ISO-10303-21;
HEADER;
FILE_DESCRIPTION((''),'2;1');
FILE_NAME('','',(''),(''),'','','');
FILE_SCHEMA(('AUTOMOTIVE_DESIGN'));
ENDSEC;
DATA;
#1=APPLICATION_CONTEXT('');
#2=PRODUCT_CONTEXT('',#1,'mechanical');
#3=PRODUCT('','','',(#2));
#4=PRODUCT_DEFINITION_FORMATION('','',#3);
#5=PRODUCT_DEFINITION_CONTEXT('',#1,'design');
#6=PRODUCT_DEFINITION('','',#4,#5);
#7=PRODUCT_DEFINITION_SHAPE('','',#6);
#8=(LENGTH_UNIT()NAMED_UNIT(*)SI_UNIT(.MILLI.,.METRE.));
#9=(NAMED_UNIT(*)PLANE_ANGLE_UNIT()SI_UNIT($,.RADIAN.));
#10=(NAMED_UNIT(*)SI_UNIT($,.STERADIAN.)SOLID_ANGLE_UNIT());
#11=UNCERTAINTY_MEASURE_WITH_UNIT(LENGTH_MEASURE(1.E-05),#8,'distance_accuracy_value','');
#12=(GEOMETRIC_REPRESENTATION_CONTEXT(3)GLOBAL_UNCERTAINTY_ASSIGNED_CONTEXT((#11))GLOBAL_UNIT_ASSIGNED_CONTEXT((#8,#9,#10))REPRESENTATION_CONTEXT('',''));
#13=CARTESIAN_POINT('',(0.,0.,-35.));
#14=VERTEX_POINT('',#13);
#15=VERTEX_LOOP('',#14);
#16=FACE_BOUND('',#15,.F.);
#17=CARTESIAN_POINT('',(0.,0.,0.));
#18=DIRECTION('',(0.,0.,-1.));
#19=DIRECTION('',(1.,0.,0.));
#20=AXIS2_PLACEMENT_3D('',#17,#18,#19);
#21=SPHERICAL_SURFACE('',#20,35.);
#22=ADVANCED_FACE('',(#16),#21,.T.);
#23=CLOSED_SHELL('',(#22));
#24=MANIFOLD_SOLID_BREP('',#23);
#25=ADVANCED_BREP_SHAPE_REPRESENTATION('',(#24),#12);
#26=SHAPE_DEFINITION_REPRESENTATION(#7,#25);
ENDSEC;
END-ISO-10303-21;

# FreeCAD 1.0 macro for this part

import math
import FreeCAD as App
import Part
import Sketcher

V = App.Vector
Q = App.Units.Quantity

doc = App.newDocument("Part")
body = doc.addObject("PartDesign::Body", "Body")

# Sketch on XZ plane
sketch1 = body.newObject("Sketcher::SketchObject", "Sketch")
sketch1.AttachmentSupport = (doc.getObject("XZ_Plane"), [""])
sketch1.MapMode = "FlatFace"
sketch1.addGeometry(Part.LineSegment(V(0, -35, 0), V(0, 35, 0)), False)
sketch1.addGeometry(Part.ArcOfCircle(Part.Circle(V(0, 0, 0), V(0, 0, 1), 35), math.radians(-90), math.radians(90)), False)
sketch1.addConstraint(Sketcher.Constraint("Coincident", 0, 1, 1, 1))
sketch1.addConstraint(Sketcher.Constraint("Coincident", 1, 2, 0, 2))
sketch1.addConstraint(Sketcher.Constraint("Vertical", 0))
sketch1.addConstraint(Sketcher.Constraint("Coincident", 1, 3, -1, 1))
sketch1.addConstraint(Sketcher.Constraint("PointOnObject", 0, 1, -2))
sketch1.addConstraint(Sketcher.Constraint("Radius", 1, Q("35 mm")))
revolution = body.newObject("PartDesign::Revolution", "Revolution")
revolution.Profile = sketch1
revolution.ReferenceAxis = (sketch1, ["V_Axis"])
revolution.Angle = 360

doc.recompute()
